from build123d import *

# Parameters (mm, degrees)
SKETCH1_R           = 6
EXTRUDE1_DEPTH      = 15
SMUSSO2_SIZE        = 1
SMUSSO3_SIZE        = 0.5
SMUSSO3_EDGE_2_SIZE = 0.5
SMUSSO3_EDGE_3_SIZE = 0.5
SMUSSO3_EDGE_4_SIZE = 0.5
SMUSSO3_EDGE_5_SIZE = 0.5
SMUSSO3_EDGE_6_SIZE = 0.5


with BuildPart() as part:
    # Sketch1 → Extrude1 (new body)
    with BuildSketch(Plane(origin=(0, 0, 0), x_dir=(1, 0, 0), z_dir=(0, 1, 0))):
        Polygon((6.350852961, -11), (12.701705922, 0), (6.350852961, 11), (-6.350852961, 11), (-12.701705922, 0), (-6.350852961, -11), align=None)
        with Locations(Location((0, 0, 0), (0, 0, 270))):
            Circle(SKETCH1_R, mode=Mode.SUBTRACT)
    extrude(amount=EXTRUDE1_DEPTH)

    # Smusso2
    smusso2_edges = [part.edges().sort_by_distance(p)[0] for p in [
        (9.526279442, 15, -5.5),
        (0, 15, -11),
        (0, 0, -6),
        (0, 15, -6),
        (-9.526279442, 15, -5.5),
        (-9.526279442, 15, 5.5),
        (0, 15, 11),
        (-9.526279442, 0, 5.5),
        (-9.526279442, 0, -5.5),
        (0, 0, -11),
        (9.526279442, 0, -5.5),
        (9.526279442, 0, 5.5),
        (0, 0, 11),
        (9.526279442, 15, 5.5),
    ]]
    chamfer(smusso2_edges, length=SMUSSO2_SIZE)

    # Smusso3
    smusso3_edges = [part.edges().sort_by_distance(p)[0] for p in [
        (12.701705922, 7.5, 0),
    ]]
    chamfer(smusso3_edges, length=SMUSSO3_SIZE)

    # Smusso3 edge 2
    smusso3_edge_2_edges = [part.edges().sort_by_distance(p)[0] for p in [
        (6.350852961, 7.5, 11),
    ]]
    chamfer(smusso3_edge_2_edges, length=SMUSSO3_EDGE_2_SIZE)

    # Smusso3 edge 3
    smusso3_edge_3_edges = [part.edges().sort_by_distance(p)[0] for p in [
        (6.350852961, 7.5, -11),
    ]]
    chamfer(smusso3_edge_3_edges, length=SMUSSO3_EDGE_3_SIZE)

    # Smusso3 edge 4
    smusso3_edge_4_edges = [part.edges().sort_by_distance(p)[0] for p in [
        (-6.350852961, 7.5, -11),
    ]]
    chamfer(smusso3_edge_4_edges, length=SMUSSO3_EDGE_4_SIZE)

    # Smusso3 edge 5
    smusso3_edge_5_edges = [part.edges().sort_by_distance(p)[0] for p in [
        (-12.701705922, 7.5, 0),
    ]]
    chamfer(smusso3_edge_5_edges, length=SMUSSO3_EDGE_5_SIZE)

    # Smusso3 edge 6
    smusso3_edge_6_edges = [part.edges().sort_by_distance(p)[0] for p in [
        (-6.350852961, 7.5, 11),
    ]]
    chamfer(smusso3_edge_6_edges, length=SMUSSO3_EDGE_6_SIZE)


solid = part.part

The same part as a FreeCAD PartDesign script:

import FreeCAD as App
import Part
import Sketcher
from FreeCAD import Vector
Q = App.Units.Quantity


def edges_at(feature, points):
    """Names of the edges that pass closest to the given points."""
    edges = feature.Shape.Edges
    near = lambda p: min(range(len(edges)), key=lambda i: edges[i].distToShape(Part.Vertex(*p))[0])
    return sorted({f"Edge{near(p) + 1}" for p in points})

doc = App.newDocument("Part")
body = doc.addObject("PartDesign::Body", "Body")

# Sketch on XZ plane
sketch1 = doc.addObject("Sketcher::SketchObject", "Sketch")
body.addObject(sketch1)
sketch1.AttachmentSupport = (doc.XZ_Plane, [""])
sketch1.MapMode = "FlatFace"
sketch1.addGeometry([
    Part.LineSegment(Vector(6, 11, 0), Vector(13, 0, 0)),  # 0
    Part.LineSegment(Vector(13, 0, 0), Vector(6, -11, 0)),  # 1
    Part.LineSegment(Vector(6, -11, 0), Vector(-6, -11, 0)),  # 2
    Part.LineSegment(Vector(-6, -11, 0), Vector(-13, 0, 0)),  # 3
    Part.LineSegment(Vector(-13, 0, 0), Vector(-6, 11, 0)),  # 4
    Part.LineSegment(Vector(-6, 11, 0), Vector(6, 11, 0)),  # 5
    Part.Circle(Vector(0, 0, 0), Vector(0, 0, 1), 6),  # 6
], False)
sketch1.addConstraint([
    Sketcher.Constraint("Coincident", 0, 2, 1, 1),
    Sketcher.Constraint("Coincident", 1, 2, 2, 1),
    Sketcher.Constraint("Coincident", 2, 2, 3, 1),
    Sketcher.Constraint("Coincident", 3, 2, 4, 1),
    Sketcher.Constraint("Coincident", 4, 2, 5, 1),
    Sketcher.Constraint("Coincident", 5, 2, 0, 1),
    Sketcher.Constraint("Horizontal", 2),
    Sketcher.Constraint("Horizontal", 5),
    Sketcher.Constraint("Coincident", 6, 3, -1, 1),
    Sketcher.Constraint("Symmetric", 0, 2, 3, 2, -1, 1),
    Sketcher.Constraint("Symmetric", 1, 2, 4, 2, -1, 1),
    Sketcher.Constraint("PointOnObject", 0, 2, -1),
    Sketcher.Constraint("Parallel", 0, 3),
    Sketcher.Constraint("Vertical", 2, 2, 4, 2),
    Sketcher.Constraint("Diameter", 6, Q("12 mm")),
    Sketcher.Constraint("Angle", 0, Q("-60 deg")),
    Sketcher.Constraint("DistanceY", 1, 2, -1, 1, Q("11 mm")),
    Sketcher.Constraint("DistanceX", 2, 2, 2, 1, Q("12.701706 mm")),
])
pad1 = doc.addObject("PartDesign::Pad", "Pad")
body.addObject(pad1)
pad1.Profile = sketch1
pad1.Length = 15
pad1.Reversed = True
doc.recompute()

chamfer = doc.addObject("PartDesign::Chamfer", "Chamfer")
body.addObject(chamfer)
chamfer.Base = (pad1, edges_at(pad1, [
    (9.526, 15, -5.5),
    (0, 15, -11),
    (0, 0, -6),
    (0, 15, -6),
    (-9.526, 15, -5.5),
    (-9.526, 15, 5.5),
    (0, 15, 11),
    (-9.526, 0, 5.5),
    (-9.526, 0, -5.5),
    (0, 0, -11),
    (9.526, 0, -5.5),
    (9.526, 0, 5.5),
    (0, 0, 11),
    (9.526, 15, 5.5),
]))
chamfer.Size = 1
doc.recompute()

chamfer2 = doc.addObject("PartDesign::Chamfer", "Chamfer001")
body.addObject(chamfer2)
chamfer2.Base = (chamfer, edges_at(chamfer, [(12.702, 7.5, 0)]))
chamfer2.Size = 0.5
doc.recompute()

chamfer3 = doc.addObject("PartDesign::Chamfer", "Chamfer002")
body.addObject(chamfer3)
chamfer3.Base = (chamfer2, edges_at(chamfer2, [(6.351, 7.5, 11)]))
chamfer3.Size = 0.5
doc.recompute()

chamfer4 = doc.addObject("PartDesign::Chamfer", "Chamfer003")
body.addObject(chamfer4)
chamfer4.Base = (chamfer3, edges_at(chamfer3, [(6.351, 7.5, -11)]))
chamfer4.Size = 0.5
doc.recompute()

chamfer5 = doc.addObject("PartDesign::Chamfer", "Chamfer004")
body.addObject(chamfer5)
chamfer5.Base = (chamfer4, edges_at(chamfer4, [(-6.351, 7.5, -11)]))
chamfer5.Size = 0.5
doc.recompute()

chamfer6 = doc.addObject("PartDesign::Chamfer", "Chamfer005")
body.addObject(chamfer6)
chamfer6.Base = (chamfer5, edges_at(chamfer5, [(-12.702, 7.5, 0)]))
chamfer6.Size = 0.5
doc.recompute()

chamfer7 = doc.addObject("PartDesign::Chamfer", "Chamfer006")
body.addObject(chamfer7)
chamfer7.Base = (chamfer6, edges_at(chamfer6, [(-6.351, 7.5, 11)]))
chamfer7.Size = 0.5

doc.recompute()
